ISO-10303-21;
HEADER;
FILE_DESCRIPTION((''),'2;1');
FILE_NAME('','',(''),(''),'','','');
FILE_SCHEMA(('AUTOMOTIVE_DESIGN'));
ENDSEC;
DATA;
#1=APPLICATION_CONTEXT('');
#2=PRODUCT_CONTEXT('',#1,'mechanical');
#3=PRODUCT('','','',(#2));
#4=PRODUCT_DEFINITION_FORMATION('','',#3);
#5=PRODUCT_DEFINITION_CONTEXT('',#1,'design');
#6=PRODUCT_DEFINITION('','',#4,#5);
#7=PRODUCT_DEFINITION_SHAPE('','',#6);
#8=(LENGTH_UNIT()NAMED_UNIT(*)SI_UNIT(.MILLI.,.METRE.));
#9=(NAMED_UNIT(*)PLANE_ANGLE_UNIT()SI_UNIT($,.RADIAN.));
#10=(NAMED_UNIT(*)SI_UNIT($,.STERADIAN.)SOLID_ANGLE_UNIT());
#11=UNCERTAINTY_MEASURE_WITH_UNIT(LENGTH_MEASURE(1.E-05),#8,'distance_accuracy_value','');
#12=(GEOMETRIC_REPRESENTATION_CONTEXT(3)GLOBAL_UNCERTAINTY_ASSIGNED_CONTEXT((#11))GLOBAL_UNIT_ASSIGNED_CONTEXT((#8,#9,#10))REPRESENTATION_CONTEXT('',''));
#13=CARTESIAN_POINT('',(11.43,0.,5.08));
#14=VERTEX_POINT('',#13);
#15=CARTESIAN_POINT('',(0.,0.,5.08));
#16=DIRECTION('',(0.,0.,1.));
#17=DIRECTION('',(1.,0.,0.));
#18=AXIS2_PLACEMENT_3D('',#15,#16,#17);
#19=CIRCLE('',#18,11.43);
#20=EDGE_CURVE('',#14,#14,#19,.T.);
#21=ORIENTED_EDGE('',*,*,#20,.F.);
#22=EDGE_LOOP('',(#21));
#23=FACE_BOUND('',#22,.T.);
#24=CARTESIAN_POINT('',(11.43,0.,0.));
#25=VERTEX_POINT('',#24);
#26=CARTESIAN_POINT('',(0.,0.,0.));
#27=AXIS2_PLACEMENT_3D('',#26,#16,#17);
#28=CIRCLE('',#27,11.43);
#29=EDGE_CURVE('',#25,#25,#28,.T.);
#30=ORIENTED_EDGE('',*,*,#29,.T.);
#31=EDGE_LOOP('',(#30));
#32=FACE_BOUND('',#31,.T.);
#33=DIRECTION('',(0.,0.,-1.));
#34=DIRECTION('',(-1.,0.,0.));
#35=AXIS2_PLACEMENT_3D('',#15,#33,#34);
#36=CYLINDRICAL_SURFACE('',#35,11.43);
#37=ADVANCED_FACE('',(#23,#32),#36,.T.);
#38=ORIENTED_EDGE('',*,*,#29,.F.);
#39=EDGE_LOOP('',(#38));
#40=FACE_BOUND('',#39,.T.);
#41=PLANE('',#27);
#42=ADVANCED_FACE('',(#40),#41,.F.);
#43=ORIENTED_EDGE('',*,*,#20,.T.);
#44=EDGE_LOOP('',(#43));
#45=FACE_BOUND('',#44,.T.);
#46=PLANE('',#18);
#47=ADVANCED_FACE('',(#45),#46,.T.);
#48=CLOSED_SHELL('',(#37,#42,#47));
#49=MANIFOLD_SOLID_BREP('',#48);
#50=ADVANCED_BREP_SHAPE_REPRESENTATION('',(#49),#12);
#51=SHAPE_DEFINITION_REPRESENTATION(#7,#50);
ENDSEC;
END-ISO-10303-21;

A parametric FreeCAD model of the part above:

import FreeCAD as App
import Part
import Sketcher
Q = App.Units.Quantity

doc = App.newDocument("Part")
body = doc.addObject("PartDesign::Body", "Body")

# Sketch on XY plane
sketch1 = doc.addObject("Sketcher::SketchObject", "Sketch")
body.addObject(sketch1)
sketch1.AttachmentSupport = (doc.XY_Plane, [""])
sketch1.MapMode = "FlatFace"
sketch1.addGeometry(Part.Circle(App.Vector(0, 0, 0), App.Vector(0, 0, 1), 11.43), False)
sketch1.addConstraint(Sketcher.Constraint("Coincident", 0, 3, -1, 1))
sketch1.addConstraint(Sketcher.Constraint("Diameter", 0, Q("0.9 in")))
pad1 = doc.addObject("PartDesign::Pad", "Pad")
body.addObject(pad1)
pad1.Profile = sketch1
pad1.Length = Q("0.2 in")

doc.recompute()
